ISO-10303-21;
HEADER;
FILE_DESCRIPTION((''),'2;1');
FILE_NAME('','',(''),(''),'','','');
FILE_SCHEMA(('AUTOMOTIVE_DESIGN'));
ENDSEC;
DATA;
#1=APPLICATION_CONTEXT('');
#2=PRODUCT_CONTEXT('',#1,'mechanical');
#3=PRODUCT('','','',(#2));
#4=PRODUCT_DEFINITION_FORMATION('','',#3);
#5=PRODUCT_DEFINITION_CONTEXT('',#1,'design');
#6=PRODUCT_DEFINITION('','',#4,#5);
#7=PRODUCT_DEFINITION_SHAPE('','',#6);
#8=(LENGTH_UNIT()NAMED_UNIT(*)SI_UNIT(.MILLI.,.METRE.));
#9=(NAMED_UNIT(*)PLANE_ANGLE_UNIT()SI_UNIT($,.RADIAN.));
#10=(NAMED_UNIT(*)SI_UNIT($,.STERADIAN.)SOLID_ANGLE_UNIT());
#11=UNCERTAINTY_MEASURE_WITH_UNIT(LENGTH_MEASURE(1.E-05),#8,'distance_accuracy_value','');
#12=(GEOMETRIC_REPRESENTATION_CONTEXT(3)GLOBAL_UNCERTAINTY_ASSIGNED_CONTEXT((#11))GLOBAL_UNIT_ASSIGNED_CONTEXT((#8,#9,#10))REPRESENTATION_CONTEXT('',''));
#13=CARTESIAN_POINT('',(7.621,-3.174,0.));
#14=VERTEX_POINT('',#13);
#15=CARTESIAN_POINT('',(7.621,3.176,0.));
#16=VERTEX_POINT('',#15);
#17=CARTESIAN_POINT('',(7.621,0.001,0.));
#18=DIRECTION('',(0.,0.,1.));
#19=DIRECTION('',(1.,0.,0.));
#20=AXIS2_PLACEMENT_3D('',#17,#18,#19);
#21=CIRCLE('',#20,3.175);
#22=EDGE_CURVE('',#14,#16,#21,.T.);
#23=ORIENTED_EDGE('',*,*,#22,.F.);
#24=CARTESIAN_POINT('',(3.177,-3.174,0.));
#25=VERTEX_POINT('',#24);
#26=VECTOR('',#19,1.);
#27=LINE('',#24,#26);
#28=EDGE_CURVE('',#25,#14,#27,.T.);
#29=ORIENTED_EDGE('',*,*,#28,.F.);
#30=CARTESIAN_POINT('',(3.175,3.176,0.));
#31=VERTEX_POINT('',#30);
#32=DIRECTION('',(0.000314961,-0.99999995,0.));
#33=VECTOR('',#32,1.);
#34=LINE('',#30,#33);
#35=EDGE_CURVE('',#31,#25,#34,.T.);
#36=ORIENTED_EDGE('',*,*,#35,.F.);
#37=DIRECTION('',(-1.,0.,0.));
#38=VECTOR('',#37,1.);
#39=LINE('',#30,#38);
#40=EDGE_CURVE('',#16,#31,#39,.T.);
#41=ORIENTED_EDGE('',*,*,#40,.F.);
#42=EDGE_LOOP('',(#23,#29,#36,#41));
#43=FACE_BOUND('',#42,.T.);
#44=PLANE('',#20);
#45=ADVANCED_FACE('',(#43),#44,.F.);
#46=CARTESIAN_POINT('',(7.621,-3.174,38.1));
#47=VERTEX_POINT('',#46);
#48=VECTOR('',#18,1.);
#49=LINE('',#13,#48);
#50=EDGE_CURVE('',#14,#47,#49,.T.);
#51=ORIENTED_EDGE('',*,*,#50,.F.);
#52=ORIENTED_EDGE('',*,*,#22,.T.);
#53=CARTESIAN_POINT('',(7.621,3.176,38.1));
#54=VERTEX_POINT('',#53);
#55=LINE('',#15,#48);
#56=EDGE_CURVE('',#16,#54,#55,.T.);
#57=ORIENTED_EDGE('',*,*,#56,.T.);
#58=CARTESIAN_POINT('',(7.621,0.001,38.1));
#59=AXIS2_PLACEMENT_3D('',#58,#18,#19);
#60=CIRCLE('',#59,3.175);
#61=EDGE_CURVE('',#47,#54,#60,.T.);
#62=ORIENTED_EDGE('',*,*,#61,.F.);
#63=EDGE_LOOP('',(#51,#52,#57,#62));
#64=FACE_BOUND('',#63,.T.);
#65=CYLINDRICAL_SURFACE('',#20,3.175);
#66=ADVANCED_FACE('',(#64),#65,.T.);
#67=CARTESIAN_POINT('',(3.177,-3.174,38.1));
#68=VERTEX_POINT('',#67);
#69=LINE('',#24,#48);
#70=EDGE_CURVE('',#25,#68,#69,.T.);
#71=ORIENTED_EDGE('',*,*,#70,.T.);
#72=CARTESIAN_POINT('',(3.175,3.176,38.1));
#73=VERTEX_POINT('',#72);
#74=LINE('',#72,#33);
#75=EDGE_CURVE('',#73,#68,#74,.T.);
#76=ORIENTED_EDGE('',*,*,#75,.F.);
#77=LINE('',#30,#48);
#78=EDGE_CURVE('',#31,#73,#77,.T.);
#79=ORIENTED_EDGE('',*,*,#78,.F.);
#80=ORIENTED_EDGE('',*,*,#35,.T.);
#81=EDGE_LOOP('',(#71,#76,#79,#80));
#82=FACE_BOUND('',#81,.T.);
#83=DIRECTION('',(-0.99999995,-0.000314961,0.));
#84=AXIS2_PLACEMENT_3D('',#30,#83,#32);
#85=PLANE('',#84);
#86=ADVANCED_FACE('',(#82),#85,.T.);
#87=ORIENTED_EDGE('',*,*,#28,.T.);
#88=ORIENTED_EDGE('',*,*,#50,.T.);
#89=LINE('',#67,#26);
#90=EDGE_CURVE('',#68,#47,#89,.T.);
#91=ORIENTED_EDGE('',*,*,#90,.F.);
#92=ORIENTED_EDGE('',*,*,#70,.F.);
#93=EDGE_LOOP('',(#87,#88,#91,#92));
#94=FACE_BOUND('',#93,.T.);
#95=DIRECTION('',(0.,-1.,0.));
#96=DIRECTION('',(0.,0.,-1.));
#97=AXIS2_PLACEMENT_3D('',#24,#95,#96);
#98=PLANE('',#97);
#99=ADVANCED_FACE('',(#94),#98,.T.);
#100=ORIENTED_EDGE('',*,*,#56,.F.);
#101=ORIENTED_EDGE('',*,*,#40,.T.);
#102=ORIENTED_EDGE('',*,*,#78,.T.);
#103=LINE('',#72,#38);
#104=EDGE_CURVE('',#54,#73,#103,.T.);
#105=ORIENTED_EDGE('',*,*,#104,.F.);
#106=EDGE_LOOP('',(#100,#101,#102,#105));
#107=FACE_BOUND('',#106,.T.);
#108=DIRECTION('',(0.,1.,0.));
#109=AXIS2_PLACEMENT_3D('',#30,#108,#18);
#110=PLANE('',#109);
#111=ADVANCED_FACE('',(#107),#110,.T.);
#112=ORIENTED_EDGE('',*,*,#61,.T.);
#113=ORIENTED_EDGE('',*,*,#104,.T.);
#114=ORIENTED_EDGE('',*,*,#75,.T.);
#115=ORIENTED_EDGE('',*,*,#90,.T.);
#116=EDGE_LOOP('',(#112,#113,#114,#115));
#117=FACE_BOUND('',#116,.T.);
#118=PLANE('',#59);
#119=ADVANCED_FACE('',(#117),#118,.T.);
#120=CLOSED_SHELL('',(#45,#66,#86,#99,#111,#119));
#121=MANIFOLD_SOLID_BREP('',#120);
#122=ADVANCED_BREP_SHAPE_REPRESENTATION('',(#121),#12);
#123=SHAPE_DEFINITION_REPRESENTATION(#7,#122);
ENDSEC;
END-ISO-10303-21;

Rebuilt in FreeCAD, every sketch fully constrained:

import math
import FreeCAD as App
import Part
import Sketcher
Q = App.Units.Quantity

doc = App.newDocument("Part")
params = doc.addObject("Spreadsheet::Sheet", "Params")
for row, (alias, value) in enumerate([
    ("sketch1_radius", "0.125 in"),
    ("pad1_length", "1.5 in"),
], start=1):
    params.set(f"A{row}", alias)
    params.set(f"B{row}", "=" + value)
    params.setAlias(f"B{row}", alias)

body = doc.addObject("PartDesign::Body", "Body")

sketch1 = doc.addObject("Sketcher::SketchObject", "Sketch")
body.addObject(sketch1)
sketch1.AttachmentSupport = (doc.XY_Plane, [""])
sketch1.MapMode = "FlatFace"
sketch1.AttachmentOffset = App.Placement(App.Vector(0, 0, 1.5 * 25.4), App.Rotation())
sketch1.addGeometry([
    Part.LineSegment(App.Vector(3.2, -3.2, 0), App.Vector(7.6, -3.2, 0)),
    Part.ArcOfCircle(Part.Circle(App.Vector(7.6, 0, 0), App.Vector(0, 0, 1), 3.2), math.radians(-90), math.radians(90)),
    Part.LineSegment(App.Vector(7.6, 3.2, 0), App.Vector(3.2, 3.2, 0)),
    Part.LineSegment(App.Vector(3.2, 3.2, 0), App.Vector(3.2, -3.2, 0)),
], False)
sketch1.addConstraint([
    Sketcher.Constraint("Tangent", 0, 2, 1, 1),
    Sketcher.Constraint("Tangent", 1, 2, 2, 1),
    Sketcher.Constraint("Coincident", 2, 2, 3, 1),
    Sketcher.Constraint("Coincident", 3, 2, 0, 1),
    Sketcher.Constraint("Horizontal", 0),
    Sketcher.Constraint("Horizontal", 2),
    Sketcher.Constraint("Radius", 1, Q("0.125 in")),
    Sketcher.Constraint("DistanceX", -1, 1, 2, 2, Q("0.125 in")),
    Sketcher.Constraint("DistanceX", 0, 1, 0, 2, 4.444),
    Sketcher.Constraint("DistanceX", 2, 2, 2, 1, 4.446),
    Sketcher.Constraint("DistanceY", -1, 1, 1, 3, 0.001),
])
sketch1.setExpression("Constraints[6]", "Params.sketch1_radius")
pad1 = doc.addObject("PartDesign::Pad", "Pad")
body.addObject(pad1)
pad1.Profile = sketch1
pad1.setExpression("Length", "Params.pad1_length")
pad1.Reversed = True

doc.recompute()
